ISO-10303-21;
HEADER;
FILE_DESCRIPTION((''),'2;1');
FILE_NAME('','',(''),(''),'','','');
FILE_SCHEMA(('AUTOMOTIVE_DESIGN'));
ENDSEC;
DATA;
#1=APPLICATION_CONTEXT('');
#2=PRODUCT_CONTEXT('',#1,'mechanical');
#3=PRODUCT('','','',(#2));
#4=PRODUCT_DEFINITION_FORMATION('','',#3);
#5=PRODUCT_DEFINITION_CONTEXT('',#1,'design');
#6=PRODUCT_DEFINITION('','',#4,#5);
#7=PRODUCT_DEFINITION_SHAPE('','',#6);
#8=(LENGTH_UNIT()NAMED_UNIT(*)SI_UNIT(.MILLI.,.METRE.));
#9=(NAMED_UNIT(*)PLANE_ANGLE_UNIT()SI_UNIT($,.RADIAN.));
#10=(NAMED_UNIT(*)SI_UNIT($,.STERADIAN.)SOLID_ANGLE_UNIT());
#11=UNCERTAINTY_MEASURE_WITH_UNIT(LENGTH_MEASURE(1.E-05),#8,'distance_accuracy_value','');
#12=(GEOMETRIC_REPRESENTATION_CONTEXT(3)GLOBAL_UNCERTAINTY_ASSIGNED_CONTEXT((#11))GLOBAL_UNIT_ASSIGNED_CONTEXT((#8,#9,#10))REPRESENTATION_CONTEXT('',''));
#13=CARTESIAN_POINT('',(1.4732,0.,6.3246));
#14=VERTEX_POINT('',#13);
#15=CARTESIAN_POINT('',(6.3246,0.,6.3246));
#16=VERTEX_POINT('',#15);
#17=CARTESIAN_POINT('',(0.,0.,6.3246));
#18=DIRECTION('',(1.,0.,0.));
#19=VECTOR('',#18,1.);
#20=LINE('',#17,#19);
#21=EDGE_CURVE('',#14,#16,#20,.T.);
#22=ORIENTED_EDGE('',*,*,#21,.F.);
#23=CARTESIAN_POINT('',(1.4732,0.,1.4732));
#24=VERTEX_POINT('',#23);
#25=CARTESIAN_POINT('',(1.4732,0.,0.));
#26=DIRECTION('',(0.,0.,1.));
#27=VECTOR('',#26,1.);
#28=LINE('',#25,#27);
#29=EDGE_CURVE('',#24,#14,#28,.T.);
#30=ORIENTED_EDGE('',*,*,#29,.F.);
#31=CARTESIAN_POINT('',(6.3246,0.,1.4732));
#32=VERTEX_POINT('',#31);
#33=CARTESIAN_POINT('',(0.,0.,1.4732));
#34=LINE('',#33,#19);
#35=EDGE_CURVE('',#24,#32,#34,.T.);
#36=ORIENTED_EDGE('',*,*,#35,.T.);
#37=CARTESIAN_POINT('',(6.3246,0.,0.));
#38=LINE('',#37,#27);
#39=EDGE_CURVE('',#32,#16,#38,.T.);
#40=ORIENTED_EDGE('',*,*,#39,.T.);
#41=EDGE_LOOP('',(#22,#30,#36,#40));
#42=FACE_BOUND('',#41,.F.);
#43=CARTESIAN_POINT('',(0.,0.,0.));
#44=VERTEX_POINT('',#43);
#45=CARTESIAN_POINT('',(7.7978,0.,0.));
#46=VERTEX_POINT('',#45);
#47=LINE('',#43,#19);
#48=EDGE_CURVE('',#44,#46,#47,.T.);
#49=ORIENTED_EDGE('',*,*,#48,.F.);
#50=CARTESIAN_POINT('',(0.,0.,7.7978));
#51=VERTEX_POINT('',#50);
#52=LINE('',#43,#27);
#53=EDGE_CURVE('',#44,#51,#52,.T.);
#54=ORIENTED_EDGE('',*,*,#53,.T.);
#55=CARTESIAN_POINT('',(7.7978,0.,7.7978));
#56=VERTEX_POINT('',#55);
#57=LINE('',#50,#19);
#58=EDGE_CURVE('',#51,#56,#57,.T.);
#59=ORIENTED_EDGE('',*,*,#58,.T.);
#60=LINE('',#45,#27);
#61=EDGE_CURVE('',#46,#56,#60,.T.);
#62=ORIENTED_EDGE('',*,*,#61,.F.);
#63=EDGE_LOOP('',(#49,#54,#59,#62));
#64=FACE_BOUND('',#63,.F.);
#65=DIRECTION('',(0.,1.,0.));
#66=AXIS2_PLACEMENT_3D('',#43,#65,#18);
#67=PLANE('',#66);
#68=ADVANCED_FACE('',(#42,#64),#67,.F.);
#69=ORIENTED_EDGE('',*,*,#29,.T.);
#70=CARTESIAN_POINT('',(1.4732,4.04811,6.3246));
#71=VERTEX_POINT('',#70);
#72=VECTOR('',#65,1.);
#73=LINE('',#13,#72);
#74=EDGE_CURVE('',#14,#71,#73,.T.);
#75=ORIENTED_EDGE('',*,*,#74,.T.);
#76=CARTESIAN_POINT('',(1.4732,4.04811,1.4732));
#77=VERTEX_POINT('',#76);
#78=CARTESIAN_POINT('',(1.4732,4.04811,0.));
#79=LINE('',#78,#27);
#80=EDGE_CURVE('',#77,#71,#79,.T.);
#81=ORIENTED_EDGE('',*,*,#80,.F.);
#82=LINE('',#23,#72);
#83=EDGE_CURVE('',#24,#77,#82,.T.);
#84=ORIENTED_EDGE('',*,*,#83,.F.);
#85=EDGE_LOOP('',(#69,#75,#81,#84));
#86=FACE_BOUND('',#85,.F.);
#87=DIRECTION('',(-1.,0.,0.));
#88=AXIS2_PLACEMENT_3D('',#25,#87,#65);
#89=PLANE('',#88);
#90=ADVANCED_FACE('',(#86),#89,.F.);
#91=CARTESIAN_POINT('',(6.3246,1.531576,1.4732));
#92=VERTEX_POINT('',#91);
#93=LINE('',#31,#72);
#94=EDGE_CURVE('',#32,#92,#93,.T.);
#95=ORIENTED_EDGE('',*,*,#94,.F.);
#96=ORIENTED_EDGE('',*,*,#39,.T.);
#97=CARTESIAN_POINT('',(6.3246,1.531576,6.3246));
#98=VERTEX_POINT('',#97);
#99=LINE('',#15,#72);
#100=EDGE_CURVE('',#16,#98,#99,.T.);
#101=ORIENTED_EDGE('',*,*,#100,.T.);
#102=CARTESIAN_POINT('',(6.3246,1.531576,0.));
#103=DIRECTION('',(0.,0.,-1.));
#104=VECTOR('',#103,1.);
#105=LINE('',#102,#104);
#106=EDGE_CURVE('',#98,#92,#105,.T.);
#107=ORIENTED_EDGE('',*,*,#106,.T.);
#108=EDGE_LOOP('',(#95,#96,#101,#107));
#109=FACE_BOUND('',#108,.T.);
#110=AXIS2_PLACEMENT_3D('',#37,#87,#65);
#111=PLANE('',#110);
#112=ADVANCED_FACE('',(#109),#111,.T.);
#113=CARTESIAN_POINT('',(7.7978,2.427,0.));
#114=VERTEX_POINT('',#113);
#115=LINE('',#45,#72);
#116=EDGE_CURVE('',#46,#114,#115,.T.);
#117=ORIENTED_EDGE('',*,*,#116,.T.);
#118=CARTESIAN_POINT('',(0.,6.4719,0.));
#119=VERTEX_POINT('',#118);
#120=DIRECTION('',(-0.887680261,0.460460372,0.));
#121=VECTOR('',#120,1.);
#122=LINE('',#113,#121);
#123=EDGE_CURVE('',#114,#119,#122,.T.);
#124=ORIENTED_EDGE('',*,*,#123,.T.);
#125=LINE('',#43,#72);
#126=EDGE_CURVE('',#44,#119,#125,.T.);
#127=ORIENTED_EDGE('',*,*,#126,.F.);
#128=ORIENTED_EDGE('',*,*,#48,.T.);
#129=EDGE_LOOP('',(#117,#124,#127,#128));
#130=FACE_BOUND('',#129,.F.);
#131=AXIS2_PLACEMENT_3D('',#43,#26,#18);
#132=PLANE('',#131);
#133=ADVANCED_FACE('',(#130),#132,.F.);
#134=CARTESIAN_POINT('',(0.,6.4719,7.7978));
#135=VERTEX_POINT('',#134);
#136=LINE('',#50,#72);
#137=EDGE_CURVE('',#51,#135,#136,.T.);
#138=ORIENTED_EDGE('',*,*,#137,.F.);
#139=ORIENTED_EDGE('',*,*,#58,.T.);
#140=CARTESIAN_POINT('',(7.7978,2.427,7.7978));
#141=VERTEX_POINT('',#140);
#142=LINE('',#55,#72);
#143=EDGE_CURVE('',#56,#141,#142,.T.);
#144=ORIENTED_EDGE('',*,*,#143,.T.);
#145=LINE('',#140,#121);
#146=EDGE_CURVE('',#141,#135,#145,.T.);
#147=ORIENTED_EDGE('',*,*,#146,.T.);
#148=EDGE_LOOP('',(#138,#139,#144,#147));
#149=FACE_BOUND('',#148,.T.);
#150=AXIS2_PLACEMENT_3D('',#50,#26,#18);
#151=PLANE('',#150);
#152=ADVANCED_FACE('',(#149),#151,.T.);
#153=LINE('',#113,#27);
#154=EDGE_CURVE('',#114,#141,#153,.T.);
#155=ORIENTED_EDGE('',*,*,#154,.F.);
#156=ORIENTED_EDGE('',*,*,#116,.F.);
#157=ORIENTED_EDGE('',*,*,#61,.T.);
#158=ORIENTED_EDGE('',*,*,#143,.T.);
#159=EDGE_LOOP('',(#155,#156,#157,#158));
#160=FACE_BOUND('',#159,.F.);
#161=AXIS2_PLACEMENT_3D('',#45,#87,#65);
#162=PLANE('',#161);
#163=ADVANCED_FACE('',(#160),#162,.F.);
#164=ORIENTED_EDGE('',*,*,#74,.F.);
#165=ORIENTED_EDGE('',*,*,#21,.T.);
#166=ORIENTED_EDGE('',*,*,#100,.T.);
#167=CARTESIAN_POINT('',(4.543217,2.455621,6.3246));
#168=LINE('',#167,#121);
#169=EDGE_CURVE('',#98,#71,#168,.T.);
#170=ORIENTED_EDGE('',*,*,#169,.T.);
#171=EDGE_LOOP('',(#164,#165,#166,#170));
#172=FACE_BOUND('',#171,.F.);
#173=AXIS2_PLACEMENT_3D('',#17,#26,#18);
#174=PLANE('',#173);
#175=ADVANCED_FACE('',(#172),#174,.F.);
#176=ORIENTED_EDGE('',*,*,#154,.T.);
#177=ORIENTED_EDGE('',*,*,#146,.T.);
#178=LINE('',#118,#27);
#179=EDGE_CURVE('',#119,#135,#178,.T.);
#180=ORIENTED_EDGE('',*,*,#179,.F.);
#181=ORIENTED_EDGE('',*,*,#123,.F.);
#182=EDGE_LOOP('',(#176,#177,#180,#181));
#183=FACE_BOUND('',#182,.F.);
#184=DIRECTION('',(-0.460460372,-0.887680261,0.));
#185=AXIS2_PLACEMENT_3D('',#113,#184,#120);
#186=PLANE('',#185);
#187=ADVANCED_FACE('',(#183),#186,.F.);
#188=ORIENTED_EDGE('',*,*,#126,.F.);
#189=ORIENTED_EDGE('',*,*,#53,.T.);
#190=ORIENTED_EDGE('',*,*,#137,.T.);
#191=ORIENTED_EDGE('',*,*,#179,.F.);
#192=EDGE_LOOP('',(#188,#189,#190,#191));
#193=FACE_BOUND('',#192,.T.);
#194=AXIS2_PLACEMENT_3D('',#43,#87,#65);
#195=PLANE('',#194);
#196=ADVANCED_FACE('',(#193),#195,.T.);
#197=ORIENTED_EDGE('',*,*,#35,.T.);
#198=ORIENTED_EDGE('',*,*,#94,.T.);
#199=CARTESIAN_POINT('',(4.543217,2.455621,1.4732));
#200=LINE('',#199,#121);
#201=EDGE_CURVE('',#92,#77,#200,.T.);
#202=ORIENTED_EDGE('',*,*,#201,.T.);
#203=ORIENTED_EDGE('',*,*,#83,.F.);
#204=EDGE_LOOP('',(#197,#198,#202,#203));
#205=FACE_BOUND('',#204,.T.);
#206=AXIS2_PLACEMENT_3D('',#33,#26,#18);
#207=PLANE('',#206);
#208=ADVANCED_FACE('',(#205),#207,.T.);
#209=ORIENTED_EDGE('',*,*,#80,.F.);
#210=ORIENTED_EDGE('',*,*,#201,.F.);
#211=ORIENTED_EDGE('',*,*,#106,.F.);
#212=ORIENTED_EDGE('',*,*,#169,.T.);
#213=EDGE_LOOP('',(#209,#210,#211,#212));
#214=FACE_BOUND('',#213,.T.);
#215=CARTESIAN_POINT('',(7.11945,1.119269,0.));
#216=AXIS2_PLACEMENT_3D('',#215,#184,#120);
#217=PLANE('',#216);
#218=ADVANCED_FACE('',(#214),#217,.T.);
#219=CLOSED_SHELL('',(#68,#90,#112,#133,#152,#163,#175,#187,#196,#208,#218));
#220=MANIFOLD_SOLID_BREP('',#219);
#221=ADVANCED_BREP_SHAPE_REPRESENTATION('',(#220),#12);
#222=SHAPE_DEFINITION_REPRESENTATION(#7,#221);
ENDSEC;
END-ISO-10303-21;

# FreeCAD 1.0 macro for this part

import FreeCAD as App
import Part
import Sketcher
from FreeCAD import Vector
Q = App.Units.Quantity


def faces_at(feature, points):
    """Names of the faces that lie closest to the given points."""
    faces = feature.Shape.Faces
    near = lambda p: min(range(len(faces)), key=lambda i: faces[i].distToShape(Part.Vertex(*p))[0])
    return sorted({f"Face{near(p) + 1}" for p in points})


def add_polygon(sketch, points):
    """Adds a closed chain of lines whose ends are joined by coincident constraints."""
    first, n = sketch.GeometryCount, len(points)
    for a, b in zip(points, points[1:] + points[:1]):
        sketch.addGeometry(Part.LineSegment(App.Vector(*a, 0), App.Vector(*b, 0)), False)
    for i in range(n):
        sketch.addConstraint(Sketcher.Constraint("Coincident", first + i, 2, first + (i + 1) % n, 1))

doc = App.newDocument("Part")
body = doc.addObject("PartDesign::Body", "Body")

# Sketch on XY plane
sketch1 = body.newObject("Sketcher::SketchObject", "Sketch")
sketch1.AttachmentSupport = (doc.getObject("XY_Plane"), [""])
sketch1.MapMode = "FlatFace"
add_polygon(sketch1, [(0, 6.5), (0, 0), (7.8, 0), (7.8, 2.4)])  # lines 0-3
sketch1.addConstraint(Sketcher.Constraint("Vertical", 0))
sketch1.addConstraint(Sketcher.Constraint("Horizontal", 1))
sketch1.addConstraint(Sketcher.Constraint("Vertical", 2))
sketch1.addConstraint(Sketcher.Constraint("Coincident", 0, 2, -1, 1))
sketch1.addConstraint(Sketcher.Constraint("DistanceX", 1, 1, 1, 2, Q("0.307 in")))
sketch1.addConstraint(Sketcher.Constraint("DistanceY", 0, 2, 0, 1, Q("0.2548 in")))
sketch1.addConstraint(Sketcher.Constraint("DistanceY", 2, 1, 2, 2, Q("2.427 mm")))
pad1 = body.newObject("PartDesign::Pad", "Pad")
pad1.Profile = sketch1
pad1.Length = Q("0.307 in")
doc.recompute()

thickness = body.newObject("PartDesign::Thickness", "Thickness")
thickness.Base = (pad1, faces_at(pad1, [(5.199, 0, 2.599)]))
thickness.Value = Q("0.058 in")
thickness.Reversed = True
thickness.Join = "Intersection"

doc.recompute()
